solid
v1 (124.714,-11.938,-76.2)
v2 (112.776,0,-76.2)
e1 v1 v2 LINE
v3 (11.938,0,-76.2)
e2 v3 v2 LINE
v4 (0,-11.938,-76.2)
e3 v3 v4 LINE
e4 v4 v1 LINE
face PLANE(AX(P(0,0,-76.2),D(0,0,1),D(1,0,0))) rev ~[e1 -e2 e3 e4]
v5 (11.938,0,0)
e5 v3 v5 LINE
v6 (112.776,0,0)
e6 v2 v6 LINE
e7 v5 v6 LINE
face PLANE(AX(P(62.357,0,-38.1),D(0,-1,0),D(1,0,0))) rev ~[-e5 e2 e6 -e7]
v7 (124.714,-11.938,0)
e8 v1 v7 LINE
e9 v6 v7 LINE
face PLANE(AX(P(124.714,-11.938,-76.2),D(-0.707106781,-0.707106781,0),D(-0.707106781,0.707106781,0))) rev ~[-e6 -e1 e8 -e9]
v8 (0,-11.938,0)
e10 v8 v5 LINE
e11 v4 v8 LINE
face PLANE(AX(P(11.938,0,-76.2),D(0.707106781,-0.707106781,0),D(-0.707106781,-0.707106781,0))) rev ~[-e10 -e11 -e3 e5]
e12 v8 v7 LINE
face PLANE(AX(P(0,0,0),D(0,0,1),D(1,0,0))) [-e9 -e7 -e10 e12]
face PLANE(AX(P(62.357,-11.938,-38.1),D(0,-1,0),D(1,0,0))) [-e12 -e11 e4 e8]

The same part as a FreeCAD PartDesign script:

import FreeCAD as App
import Part
import Sketcher
Q = App.Units.Quantity


def add_polygon(sketch, points):
    """Adds a closed chain of lines whose ends are joined by coincident constraints."""
    first, n = sketch.GeometryCount, len(points)
    for a, b in zip(points, points[1:] + points[:1]):
        sketch.addGeometry(Part.LineSegment(App.Vector(*a, 0), App.Vector(*b, 0)), False)
    for i in range(n):
        sketch.addConstraint(Sketcher.Constraint("Coincident", first + i, 2, first + (i + 1) % n, 1))

doc = App.newDocument("Part")
params = doc.addObject("Spreadsheet::Sheet", "Params")
for row, (alias, value) in enumerate([
    ("sketch1_height", "3 in"),
    ("sketch1_width", "4.91 in"),
    ("pad1_length", "0.47 in"),
    ("sketch2_width", "0.47 in"),
    ("sketch3_width", "0.47 in"),
], start=1):
    params.set(f"A{row}", alias)
    params.set(f"B{row}", "=" + value)
    params.setAlias(f"B{row}", alias)

body = doc.addObject("PartDesign::Body", "Body")

# Sketch on XZ plane
sketch1 = body.newObject("Sketcher::SketchObject", "Sketch")
sketch1.AttachmentSupport = (doc.getObject("XZ_Plane"), [""])
sketch1.MapMode = "FlatFace"
add_polygon(sketch1, [(0, 0), (0, -76.2), (124.714, -76.2), (124.714, 0)])  # lines 0-3
sketch1.addConstraint([
    Sketcher.Constraint("Vertical", 0),
    Sketcher.Constraint("Horizontal", 1),
    Sketcher.Constraint("Vertical", 2),
    Sketcher.Constraint("Horizontal", 3),
    Sketcher.Constraint("Coincident", 3, 2, -1, 1),
    Sketcher.Constraint("DistanceY", 0, 2, 0, 1, Q("3 in")),
    Sketcher.Constraint("DistanceX", 1, 1, 1, 2, Q("4.91 in")),
])
sketch1.setExpression("Constraints[9]", "Params.sketch1_height")
sketch1.setExpression("Constraints[10]", "Params.sketch1_width")
pad1 = body.newObject("PartDesign::Pad", "Pad")
pad1.Profile = sketch1
pad1.setExpression("Length", "Params.pad1_length")

# Sketch on XY plane
sketch2 = body.newObject("Sketcher::SketchObject", "Sketch001")
sketch2.AttachmentSupport = (doc.getObject("XY_Plane"), [""])
sketch2.MapMode = "FlatFace"
sketch2.AttachmentOffset = App.Placement(App.Vector(0, 0, -3 * 25.4), App.Rotation())
add_polygon(sketch2, [(11.938, 0), (0, -11.938), (0, 0)])  # lines 0-2
sketch2.addConstraint([
    Sketcher.Constraint("Vertical", 1),
    Sketcher.Constraint("Horizontal", 2),
    Sketcher.Constraint("Coincident", 1, 2, -1, 1),
    Sketcher.Constraint("Equal", 2, 1),
    Sketcher.Constraint("DistanceX", 2, 1, 2, 2, Q("0.47 in")),
])
sketch2.setExpression("Constraints[7]", "Params.sketch2_width")
pocket1 = body.newObject("PartDesign::Pocket", "Pocket")
pocket1.Profile = sketch2
pocket1.Type = "ThroughAll"
pocket1.Reversed = True

# Sketch on XY plane
sketch3 = body.newObject("Sketcher::SketchObject", "Sketch002")
sketch3.AttachmentSupport = (doc.getObject("XY_Plane"), [""])
sketch3.MapMode = "FlatFace"
sketch3.AttachmentOffset = App.Placement(App.Vector(0, 0, -3 * 25.4), App.Rotation())
add_polygon(sketch3, [(124.714, 0), (124.714, -11.938), (112.776, 0)])  # lines 0-2
sketch3.addConstraint([
    Sketcher.Constraint("Vertical", 0),
    Sketcher.Constraint("Horizontal", 2),
    Sketcher.Constraint("PointOnObject", 1, 2, -1),
    Sketcher.Constraint("Equal", 2, 0),
    Sketcher.Constraint("DistanceX", 2, 1, 2, 2, Q("0.47 in")),
    Sketcher.Constraint("DistanceX", -1, 1, 0, 2, Q("4.91 in")),
])
sketch3.setExpression("Constraints[7]", "Params.sketch3_width")
pocket2 = body.newObject("PartDesign::Pocket", "Pocket001")
pocket2.Profile = sketch3
pocket2.Type = "ThroughAll"
pocket2.Reversed = True

doc.recompute()
